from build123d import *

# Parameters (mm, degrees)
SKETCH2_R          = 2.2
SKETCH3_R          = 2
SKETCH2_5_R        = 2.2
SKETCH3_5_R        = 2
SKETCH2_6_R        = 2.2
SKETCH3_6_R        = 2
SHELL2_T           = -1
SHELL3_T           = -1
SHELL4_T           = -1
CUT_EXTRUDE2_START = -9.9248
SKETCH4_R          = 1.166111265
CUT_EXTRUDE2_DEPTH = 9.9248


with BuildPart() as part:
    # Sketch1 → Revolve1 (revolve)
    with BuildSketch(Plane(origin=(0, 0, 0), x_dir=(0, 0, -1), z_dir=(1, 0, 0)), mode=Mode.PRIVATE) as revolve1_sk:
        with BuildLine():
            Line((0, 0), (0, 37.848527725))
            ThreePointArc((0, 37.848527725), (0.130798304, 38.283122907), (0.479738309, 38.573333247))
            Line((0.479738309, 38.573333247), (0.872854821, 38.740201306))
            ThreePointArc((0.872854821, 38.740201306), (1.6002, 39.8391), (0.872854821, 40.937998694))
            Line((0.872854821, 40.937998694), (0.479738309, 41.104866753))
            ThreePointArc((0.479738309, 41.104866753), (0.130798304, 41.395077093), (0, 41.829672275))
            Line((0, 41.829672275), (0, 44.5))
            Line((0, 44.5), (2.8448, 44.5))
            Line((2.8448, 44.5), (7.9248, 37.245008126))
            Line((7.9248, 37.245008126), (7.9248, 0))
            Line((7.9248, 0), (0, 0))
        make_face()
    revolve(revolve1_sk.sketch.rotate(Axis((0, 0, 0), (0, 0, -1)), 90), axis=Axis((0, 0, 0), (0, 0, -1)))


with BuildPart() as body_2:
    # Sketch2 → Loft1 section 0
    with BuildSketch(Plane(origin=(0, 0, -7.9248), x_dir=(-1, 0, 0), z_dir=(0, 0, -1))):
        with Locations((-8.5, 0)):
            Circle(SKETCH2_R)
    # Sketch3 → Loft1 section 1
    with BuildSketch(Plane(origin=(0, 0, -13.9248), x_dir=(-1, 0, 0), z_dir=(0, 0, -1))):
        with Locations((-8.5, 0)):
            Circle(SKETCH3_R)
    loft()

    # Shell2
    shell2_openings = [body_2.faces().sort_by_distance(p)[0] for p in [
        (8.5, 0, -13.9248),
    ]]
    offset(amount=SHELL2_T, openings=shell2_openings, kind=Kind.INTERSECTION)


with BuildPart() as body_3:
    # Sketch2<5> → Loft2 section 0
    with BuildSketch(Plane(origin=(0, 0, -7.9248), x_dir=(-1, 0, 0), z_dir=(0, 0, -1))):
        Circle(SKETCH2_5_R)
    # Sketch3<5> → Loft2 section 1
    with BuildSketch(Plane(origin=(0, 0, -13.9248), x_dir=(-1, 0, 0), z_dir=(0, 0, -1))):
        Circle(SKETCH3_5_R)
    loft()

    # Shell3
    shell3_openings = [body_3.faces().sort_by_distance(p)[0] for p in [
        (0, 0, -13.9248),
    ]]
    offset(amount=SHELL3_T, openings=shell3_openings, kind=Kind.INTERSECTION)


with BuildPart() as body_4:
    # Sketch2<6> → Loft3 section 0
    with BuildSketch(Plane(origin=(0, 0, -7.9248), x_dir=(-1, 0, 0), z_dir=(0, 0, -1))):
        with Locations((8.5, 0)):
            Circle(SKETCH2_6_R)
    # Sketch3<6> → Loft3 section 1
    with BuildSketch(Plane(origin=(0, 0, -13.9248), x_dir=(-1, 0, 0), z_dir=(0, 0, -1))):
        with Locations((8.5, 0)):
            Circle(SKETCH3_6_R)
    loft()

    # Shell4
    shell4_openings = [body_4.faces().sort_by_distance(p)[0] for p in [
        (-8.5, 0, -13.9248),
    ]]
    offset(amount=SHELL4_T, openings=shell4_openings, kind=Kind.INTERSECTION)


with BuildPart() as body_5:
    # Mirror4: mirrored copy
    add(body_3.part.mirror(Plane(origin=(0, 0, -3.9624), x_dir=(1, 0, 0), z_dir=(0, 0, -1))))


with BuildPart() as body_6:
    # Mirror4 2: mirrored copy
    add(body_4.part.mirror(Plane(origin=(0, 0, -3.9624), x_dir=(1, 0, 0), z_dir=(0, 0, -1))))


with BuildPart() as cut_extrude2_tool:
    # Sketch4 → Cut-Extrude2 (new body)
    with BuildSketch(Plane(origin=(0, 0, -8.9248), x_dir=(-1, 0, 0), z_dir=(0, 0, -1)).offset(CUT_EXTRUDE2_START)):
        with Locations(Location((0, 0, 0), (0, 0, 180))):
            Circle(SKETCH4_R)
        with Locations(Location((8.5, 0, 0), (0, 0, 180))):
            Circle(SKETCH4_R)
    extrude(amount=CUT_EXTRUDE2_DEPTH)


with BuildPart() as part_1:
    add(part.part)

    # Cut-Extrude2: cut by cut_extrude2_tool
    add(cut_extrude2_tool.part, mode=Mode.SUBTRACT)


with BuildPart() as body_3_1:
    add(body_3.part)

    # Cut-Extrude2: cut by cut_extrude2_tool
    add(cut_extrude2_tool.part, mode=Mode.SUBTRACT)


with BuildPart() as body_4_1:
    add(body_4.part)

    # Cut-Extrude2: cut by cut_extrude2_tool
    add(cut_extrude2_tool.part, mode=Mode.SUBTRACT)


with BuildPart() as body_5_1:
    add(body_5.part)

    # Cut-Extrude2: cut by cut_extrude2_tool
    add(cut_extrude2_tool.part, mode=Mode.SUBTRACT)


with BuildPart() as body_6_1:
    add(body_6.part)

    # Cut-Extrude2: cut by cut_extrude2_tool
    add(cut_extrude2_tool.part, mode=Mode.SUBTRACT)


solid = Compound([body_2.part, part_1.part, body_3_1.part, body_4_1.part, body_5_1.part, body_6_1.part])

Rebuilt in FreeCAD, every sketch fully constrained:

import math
import FreeCAD as App
import Part
import Sketcher
Q = App.Units.Quantity


def faces_at(feature, points):
    """Names of the faces that lie closest to the given points."""
    faces = feature.Shape.Faces
    near = lambda p: min(range(len(faces)), key=lambda i: faces[i].distToShape(Part.Vertex(*p))[0])
    return sorted({f"Face{near(p) + 1}" for p in points})

doc = App.newDocument("Part")
body = doc.addObject("PartDesign::Body", "Body")

sketch1 = body.newObject("Sketcher::SketchObject", "Sketch")
sketch1.AttachmentSupport = (doc.getObject("YZ_Plane"), [""])
sketch1.MapMode = "FlatFace"
sketch1.addGeometry([
    Part.LineSegment(App.Vector(37.85, 0, 0), App.Vector(0, 0, 0)),
    Part.LineSegment(App.Vector(0, 0, 0), App.Vector(0, -7.92, 0)),
    Part.LineSegment(App.Vector(0, -7.92, 0), App.Vector(37.25, -7.92, 0)),
    Part.LineSegment(App.Vector(37.25, -7.92, 0), App.Vector(44.5, -2.84, 0)),
    Part.LineSegment(App.Vector(44.5, -2.84, 0), App.Vector(44.5, 0, 0)),
    Part.LineSegment(App.Vector(44.5, 0, 0), App.Vector(41.83, 0, 0)),
    Part.ArcOfCircle(Part.Circle(App.Vector(41.83, -0.79, 0), App.Vector(0, 0, 1), 0.79), math.radians(90), math.radians(157)),
    Part.LineSegment(App.Vector(41.1, -0.48, 0), App.Vector(40.94, -0.87, 0)),
    Part.ArcOfCircle(Part.Circle(App.Vector(39.84, -0.41, 0), App.Vector(0, 0, 1), 1.19), math.radians(-157), math.radians(-23)),
    Part.LineSegment(App.Vector(38.74, -0.87, 0), App.Vector(38.57, -0.48, 0)),
    Part.ArcOfCircle(Part.Circle(App.Vector(37.85, -0.79, 0), App.Vector(0, 0, 1), 0.79), math.radians(23), math.radians(90)),
], False)
sketch1.addConstraint([
    Sketcher.Constraint("Coincident", 0, 2, 1, 1),
    Sketcher.Constraint("Coincident", 1, 2, 2, 1),
    Sketcher.Constraint("Coincident", 2, 2, 3, 1),
    Sketcher.Constraint("Coincident", 3, 2, 4, 1),
    Sketcher.Constraint("Coincident", 4, 2, 5, 1),
    Sketcher.Constraint("Tangent", 5, 2, 6, 1),
    Sketcher.Constraint("Tangent", 6, 2, 7, 1),
    Sketcher.Constraint("Tangent", 7, 2, 8, 2),
    Sketcher.Constraint("Tangent", 8, 1, 9, 1),
    Sketcher.Constraint("Tangent", 9, 2, 10, 1),
    Sketcher.Constraint("Tangent", 10, 2, 0, 1),
    Sketcher.Constraint("Horizontal", 0),
    Sketcher.Constraint("Vertical", 1),
    Sketcher.Constraint("Horizontal", 2),
    Sketcher.Constraint("Vertical", 4),
    Sketcher.Constraint("Horizontal", 5),
    Sketcher.Constraint("Coincident", 0, 2, -1, 1),
    Sketcher.Constraint("Equal", 6, 10),
    Sketcher.Constraint("PointOnObject", 4, 2, -1),
    Sketcher.Constraint("Horizontal", 7, 2, 8, 1),
    Sketcher.Constraint("Angle", 3, Q("35 deg")),
    Sketcher.Constraint("Angle", 7, Q("-113 deg")),
    Sketcher.Constraint("Radius", 6, Q("0.031 in")),
    Sketcher.Constraint("Radius", 8, Q("0.047 in")),
    Sketcher.Constraint("DistanceY", 2, 2, 3, 2, Q("0.2 in")),
    Sketcher.Constraint("DistanceY", 1, 2, 1, 1, Q("0.312 in")),
    Sketcher.Constraint("DistanceY", 8, 3, -1, 1, Q("0.016 in")),
    Sketcher.Constraint("DistanceX", 8, 3, 3, 2, Q("0.1835 in")),
    Sketcher.Constraint("DistanceX", 2, 1, 2, 2, 37.245008),
])
revolution = body.newObject("PartDesign::Revolution", "Revolution")
revolution.Profile = sketch1
revolution.ReferenceAxis = (sketch1, ["V_Axis"])
revolution.Angle = 360
body2 = doc.addObject("PartDesign::Body", "Body001")

sketch2 = body2.newObject("Sketcher::SketchObject", "Sketch001")
sketch2.AttachmentSupport = (doc.getObject("XY_Plane001"), [""])
sketch2.MapMode = "FlatFace"
sketch2.AttachmentOffset = App.Placement(App.Vector(0, 0, -0.312 * 25.4), App.Rotation())
sketch2.addGeometry(Part.Circle(App.Vector(8.5, 0, 0), App.Vector(0, 0, 1), 2.2), False)
sketch2.addConstraint([
    Sketcher.Constraint("PointOnObject", 0, 3, -1),
    Sketcher.Constraint("Diameter", 0, 4.4),
    Sketcher.Constraint("DistanceX", -1, 1, 0, 3, 8.5),
])

sketch3 = body2.newObject("Sketcher::SketchObject", "Sketch002")
sketch3.AttachmentSupport = (doc.getObject("XY_Plane001"), [""])
sketch3.MapMode = "FlatFace"
sketch3.AttachmentOffset = App.Placement(App.Vector(0, 0, -13.9248), App.Rotation())
sketch3.addGeometry(Part.Circle(App.Vector(8.5, 0, 0), App.Vector(0, 0, 1), 2), False)
sketch3.addConstraint([
    Sketcher.Constraint("PointOnObject", 0, 3, -1),
    Sketcher.Constraint("Diameter", 0, 4.0),
    Sketcher.Constraint("DistanceX", -1, 1, 0, 3, 8.5),
])

additiveloft = body2.newObject("PartDesign::AdditiveLoft", "AdditiveLoft")
additiveloft.Profile = sketch2
additiveloft.Sections = [sketch3]
doc.recompute()

thickness = body2.newObject("PartDesign::Thickness", "Thickness")
thickness.Base = (additiveloft, faces_at(additiveloft, [(8.5, 0, -13.925)]))
thickness.Value = 1
thickness.Reversed = True
thickness.Join = "Intersection"
body3 = doc.addObject("PartDesign::Body", "Body002")

sketch4 = body3.newObject("Sketcher::SketchObject", "Sketch003")
sketch4.AttachmentSupport = (doc.getObject("XY_Plane002"), [""])
sketch4.MapMode = "FlatFace"
sketch4.AttachmentOffset = App.Placement(App.Vector(0, 0, -0.312 * 25.4), App.Rotation())
sketch4.addGeometry(Part.Circle(App.Vector(0, 0, 0), App.Vector(0, 0, 1), 2.2), False)
sketch4.addConstraint([
    Sketcher.Constraint("Coincident", 0, 3, -1, 1),
    Sketcher.Constraint("Diameter", 0, 4.4),
])

sketch5 = body3.newObject("Sketcher::SketchObject", "Sketch004")
sketch5.AttachmentSupport = (doc.getObject("XY_Plane002"), [""])
sketch5.MapMode = "FlatFace"
sketch5.AttachmentOffset = App.Placement(App.Vector(0, 0, -13.9248), App.Rotation())
sketch5.addGeometry(Part.Circle(App.Vector(0, 0, 0), App.Vector(0, 0, 1), 2), False)
sketch5.addConstraint([
    Sketcher.Constraint("Coincident", 0, 3, -1, 1),
    Sketcher.Constraint("Diameter", 0, 4.0),
])

additiveloft2 = body3.newObject("PartDesign::AdditiveLoft", "AdditiveLoft001")
additiveloft2.Profile = sketch4
additiveloft2.Sections = [sketch5]
doc.recompute()

thickness2 = body3.newObject("PartDesign::Thickness", "Thickness001")
thickness2.Base = (additiveloft2, faces_at(additiveloft2, [(0, 0, -13.925)]))
thickness2.Value = 1
thickness2.Reversed = True
thickness2.Join = "Intersection"
body4 = doc.addObject("PartDesign::Body", "Body003")

sketch6 = body4.newObject("Sketcher::SketchObject", "Sketch005")
sketch6.AttachmentSupport = (doc.getObject("XY_Plane003"), [""])
sketch6.MapMode = "FlatFace"
sketch6.AttachmentOffset = App.Placement(App.Vector(0, 0, -0.312 * 25.4), App.Rotation())
sketch6.addGeometry(Part.Circle(App.Vector(-8.5, 0, 0), App.Vector(0, 0, 1), 2.2), False)
sketch6.addConstraint([
    Sketcher.Constraint("PointOnObject", 0, 3, -1),
    Sketcher.Constraint("Diameter", 0, 4.4),
    Sketcher.Constraint("DistanceX", 0, 3, -1, 1, 8.5),
])

sketch7 = body4.newObject("Sketcher::SketchObject", "Sketch006")
sketch7.AttachmentSupport = (doc.getObject("XY_Plane003"), [""])
sketch7.MapMode = "FlatFace"
sketch7.AttachmentOffset = App.Placement(App.Vector(0, 0, -13.9248), App.Rotation())
sketch7.addGeometry(Part.Circle(App.Vector(-8.5, 0, 0), App.Vector(0, 0, 1), 2), False)
sketch7.addConstraint([
    Sketcher.Constraint("PointOnObject", 0, 3, -1),
    Sketcher.Constraint("Diameter", 0, 4.0),
    Sketcher.Constraint("DistanceX", 0, 3, -1, 1, 8.5),
])

additiveloft3 = body4.newObject("PartDesign::AdditiveLoft", "AdditiveLoft002")
additiveloft3.Profile = sketch6
additiveloft3.Sections = [sketch7]
doc.recompute()

thickness3 = body4.newObject("PartDesign::Thickness", "Thickness002")
thickness3.Base = (additiveloft3, faces_at(additiveloft3, [(-8.5, 0, -13.925)]))
thickness3.Value = 1
thickness3.Reversed = True
thickness3.Join = "Intersection"
body5 = doc.addObject("PartDesign::Body", "Body004")
doc.recompute()

mirroring = doc.addObject("Part::Mirroring", "Mirroring")
mirroring.Source = body3
mirroring.Base = App.Vector(0, 0, -3.9624)
mirroring.Normal = App.Vector(0, 0, -1)
body5.BaseFeature = mirroring
doc.recompute()
body6 = doc.addObject("PartDesign::Body", "Body005")
doc.recompute()

mirroring2 = doc.addObject("Part::Mirroring", "Mirroring001")
mirroring2.Source = body4
mirroring2.Base = App.Vector(0, 0, -3.9624)
mirroring2.Normal = App.Vector(0, 0, -1)
body6.BaseFeature = mirroring2
doc.recompute()
body7 = doc.addObject("PartDesign::Body", "Body006")
body7.AllowCompound = True

sketch8 = body7.newObject("Sketcher::SketchObject", "Sketch007")
sketch8.AttachmentSupport = (doc.getObject("XY_Plane006"), [""])
sketch8.MapMode = "FlatFace"
sketch8.AttachmentOffset = App.Placement(App.Vector(0, 0, 1), App.Rotation())
sketch8.addGeometry([
    Part.Circle(App.Vector(0, 0, 0), App.Vector(0, 0, 1), 1.2),
    Part.Circle(App.Vector(-8.5, 0, 0), App.Vector(0, 0, 1), 1.2),
], False)
sketch8.addConstraint([
    Sketcher.Constraint("Coincident", 0, 3, -1, 1),
    Sketcher.Constraint("Equal", 0, 1),
    Sketcher.Constraint("PointOnObject", 1, 3, -1),
    Sketcher.Constraint("Diameter", 0, 2.332223),
    Sketcher.Constraint("DistanceX", 1, 3, -1, 1, 8.5),
])
pad1 = body7.newObject("PartDesign::Pad", "Pad")
pad1.Profile = sketch8
pad1.Length = 9.9248
pad1.Reversed = True
doc.recompute()

body8 = doc.addObject("PartDesign::Body", "Body007")
body8.BaseFeature = body7
boolean = body.newObject("PartDesign::Boolean", "Boolean")
boolean.Type = "Cut"
boolean.addObjects([body8])
doc.recompute()

body9 = doc.addObject("PartDesign::Body", "Body008")
body9.BaseFeature = body7
boolean2 = body3.newObject("PartDesign::Boolean", "Boolean001")
boolean2.Type = "Cut"
boolean2.addObjects([body9])
doc.recompute()

body10 = doc.addObject("PartDesign::Body", "Body009")
body10.BaseFeature = body7
boolean3 = body4.newObject("PartDesign::Boolean", "Boolean002")
boolean3.Type = "Cut"
boolean3.addObjects([body10])
doc.recompute()

body11 = doc.addObject("PartDesign::Body", "Body010")
body11.BaseFeature = body7
boolean4 = body5.newObject("PartDesign::Boolean", "Boolean003")
boolean4.Type = "Cut"
boolean4.addObjects([body11])
doc.recompute()

boolean5 = body6.newObject("PartDesign::Boolean", "Boolean004")
boolean5.Type = "Cut"
boolean5.addObjects([body7])
mirroring.Visibility = False
mirroring2.Visibility = False

doc.recompute()
